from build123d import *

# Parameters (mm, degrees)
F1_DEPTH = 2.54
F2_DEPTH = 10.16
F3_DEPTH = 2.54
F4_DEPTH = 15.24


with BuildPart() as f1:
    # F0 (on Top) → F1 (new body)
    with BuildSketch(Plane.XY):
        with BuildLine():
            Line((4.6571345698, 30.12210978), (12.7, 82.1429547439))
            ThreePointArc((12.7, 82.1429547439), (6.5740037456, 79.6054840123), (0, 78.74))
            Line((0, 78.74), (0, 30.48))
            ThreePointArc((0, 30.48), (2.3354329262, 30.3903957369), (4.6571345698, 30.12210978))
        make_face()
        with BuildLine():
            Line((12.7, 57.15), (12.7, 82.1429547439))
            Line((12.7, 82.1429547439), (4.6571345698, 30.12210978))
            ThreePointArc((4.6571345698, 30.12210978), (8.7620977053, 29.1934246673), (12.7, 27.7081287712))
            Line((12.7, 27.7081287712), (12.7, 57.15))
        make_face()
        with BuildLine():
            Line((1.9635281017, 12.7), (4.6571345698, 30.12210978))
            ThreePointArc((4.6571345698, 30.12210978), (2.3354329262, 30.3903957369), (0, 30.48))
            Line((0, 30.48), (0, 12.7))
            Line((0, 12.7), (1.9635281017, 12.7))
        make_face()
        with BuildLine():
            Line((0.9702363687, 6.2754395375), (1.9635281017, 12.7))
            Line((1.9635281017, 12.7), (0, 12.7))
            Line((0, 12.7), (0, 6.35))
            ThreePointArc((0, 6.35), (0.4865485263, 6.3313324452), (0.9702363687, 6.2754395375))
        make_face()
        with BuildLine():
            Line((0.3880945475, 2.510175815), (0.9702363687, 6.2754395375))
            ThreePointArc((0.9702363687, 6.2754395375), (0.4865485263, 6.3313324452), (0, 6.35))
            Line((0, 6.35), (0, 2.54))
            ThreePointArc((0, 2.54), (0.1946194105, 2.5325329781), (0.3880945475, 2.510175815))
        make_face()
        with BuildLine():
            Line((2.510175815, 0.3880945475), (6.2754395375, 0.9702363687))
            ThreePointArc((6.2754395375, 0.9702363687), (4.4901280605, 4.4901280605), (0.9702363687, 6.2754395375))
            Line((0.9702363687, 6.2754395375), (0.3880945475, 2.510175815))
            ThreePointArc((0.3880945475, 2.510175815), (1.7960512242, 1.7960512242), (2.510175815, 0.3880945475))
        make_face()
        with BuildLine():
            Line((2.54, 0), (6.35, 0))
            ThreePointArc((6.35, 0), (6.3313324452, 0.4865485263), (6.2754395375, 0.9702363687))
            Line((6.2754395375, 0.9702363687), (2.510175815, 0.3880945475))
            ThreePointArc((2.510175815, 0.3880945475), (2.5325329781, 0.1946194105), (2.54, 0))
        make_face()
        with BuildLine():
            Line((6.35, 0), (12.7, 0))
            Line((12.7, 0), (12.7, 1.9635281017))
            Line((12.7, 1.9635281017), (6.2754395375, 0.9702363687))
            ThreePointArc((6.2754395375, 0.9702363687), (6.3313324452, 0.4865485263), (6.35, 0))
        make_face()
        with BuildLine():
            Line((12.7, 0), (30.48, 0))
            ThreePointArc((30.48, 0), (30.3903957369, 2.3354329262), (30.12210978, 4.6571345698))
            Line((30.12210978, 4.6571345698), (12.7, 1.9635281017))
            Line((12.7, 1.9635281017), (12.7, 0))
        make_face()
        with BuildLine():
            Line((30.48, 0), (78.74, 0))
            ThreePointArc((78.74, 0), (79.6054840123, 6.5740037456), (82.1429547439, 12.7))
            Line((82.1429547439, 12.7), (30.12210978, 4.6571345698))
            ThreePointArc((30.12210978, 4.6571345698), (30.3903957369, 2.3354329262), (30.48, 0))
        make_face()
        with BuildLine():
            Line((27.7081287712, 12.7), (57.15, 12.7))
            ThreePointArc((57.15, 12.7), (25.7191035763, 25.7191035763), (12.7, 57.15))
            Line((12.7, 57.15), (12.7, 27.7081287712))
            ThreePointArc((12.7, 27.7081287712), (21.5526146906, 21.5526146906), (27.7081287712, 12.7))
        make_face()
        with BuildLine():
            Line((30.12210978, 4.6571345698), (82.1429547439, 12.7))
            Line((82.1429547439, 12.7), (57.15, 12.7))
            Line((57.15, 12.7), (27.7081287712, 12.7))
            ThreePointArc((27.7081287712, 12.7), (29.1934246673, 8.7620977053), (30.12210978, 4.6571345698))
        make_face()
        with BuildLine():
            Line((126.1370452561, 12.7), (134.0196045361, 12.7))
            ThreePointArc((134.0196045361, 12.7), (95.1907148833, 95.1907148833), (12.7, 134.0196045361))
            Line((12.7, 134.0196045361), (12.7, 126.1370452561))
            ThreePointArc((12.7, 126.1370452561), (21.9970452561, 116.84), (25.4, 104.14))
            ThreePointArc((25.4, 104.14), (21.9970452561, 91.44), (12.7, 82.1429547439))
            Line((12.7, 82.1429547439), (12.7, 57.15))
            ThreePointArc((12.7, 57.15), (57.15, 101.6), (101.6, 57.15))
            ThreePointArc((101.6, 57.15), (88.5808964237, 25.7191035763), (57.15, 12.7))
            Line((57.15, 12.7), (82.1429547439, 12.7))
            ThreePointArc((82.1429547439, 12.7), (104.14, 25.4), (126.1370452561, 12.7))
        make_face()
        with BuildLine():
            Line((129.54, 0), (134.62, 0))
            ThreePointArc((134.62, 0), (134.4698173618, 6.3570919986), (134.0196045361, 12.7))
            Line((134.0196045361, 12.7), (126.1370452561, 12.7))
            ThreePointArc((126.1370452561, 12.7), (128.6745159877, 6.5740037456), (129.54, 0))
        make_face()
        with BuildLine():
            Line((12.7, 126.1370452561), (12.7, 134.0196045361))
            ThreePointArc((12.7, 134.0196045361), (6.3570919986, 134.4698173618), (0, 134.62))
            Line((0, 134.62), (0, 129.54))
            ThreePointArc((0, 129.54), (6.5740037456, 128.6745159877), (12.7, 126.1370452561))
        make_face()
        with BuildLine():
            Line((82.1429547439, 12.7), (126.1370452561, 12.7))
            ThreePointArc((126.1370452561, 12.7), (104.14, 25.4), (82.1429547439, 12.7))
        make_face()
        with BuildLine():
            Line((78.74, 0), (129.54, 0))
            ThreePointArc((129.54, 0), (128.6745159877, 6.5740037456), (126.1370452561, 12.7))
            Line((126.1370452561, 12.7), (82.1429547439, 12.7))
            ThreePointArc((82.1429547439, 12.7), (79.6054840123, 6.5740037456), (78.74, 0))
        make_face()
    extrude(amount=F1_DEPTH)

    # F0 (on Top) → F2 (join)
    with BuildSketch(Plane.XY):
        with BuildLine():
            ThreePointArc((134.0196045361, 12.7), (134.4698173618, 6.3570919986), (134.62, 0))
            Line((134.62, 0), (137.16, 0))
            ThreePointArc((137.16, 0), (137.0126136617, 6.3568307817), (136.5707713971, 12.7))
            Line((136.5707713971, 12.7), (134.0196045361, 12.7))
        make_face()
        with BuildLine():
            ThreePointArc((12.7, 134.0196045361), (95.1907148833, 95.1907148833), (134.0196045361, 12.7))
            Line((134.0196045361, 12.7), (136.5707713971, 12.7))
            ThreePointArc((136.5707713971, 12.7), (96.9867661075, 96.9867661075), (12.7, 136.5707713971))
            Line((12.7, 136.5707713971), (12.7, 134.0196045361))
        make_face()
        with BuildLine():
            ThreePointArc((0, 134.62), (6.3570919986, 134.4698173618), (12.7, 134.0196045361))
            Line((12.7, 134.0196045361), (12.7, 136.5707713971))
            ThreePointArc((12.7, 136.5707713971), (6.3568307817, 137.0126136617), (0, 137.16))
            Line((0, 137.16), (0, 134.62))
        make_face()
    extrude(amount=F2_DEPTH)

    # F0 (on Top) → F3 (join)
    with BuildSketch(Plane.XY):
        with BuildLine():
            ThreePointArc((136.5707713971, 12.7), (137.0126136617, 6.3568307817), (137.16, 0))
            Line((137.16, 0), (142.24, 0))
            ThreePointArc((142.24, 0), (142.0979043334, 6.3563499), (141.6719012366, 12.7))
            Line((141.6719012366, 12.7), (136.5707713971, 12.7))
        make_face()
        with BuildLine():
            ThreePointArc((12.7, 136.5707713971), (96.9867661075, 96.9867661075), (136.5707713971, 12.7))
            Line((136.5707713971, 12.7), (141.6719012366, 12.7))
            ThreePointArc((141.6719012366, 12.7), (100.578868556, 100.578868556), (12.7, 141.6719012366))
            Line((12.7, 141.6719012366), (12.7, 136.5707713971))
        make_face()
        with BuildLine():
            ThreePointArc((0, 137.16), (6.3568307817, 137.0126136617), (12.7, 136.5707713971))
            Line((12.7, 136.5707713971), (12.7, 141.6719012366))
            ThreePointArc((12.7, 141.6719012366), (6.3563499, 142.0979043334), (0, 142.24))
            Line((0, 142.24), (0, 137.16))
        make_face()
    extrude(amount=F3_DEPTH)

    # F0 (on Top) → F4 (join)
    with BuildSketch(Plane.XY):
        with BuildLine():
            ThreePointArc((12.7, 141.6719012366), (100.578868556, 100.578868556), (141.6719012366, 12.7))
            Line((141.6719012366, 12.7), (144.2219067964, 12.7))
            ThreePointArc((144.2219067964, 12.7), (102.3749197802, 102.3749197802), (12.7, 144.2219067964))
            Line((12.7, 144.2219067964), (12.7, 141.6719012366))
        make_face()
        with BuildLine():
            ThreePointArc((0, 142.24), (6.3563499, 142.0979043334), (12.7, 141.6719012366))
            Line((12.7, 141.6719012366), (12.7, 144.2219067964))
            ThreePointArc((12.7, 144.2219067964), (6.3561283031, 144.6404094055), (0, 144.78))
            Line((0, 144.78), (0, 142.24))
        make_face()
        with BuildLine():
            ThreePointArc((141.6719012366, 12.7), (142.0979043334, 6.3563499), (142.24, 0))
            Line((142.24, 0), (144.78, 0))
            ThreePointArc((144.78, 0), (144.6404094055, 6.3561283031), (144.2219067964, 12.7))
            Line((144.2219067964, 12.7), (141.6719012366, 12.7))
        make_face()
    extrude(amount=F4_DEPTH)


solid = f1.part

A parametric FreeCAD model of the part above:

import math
import FreeCAD as App
import Part
import Sketcher

V = App.Vector
Q = App.Units.Quantity

doc = App.newDocument("Part")
params = doc.addObject("Spreadsheet::Sheet", "Params")
for row, (alias, value) in enumerate([
    ("sketch1_radius", "1 in"),
    ("sketch1_radius2", "0.1 in"),
    ("sketch1_radius3", "5.3 in"),
    ("sketch1_radius4", "1.2 in"),
    ("sketch1_height", "3 in"),
    ("pad1_length", "0.1 in"),
    ("sketch2_radius", "5.3 in"),
    ("sketch2_radius2", "5.4 in"),
    ("pad2_length", "0.4 in"),
    ("sketch3_radius", "5.4 in"),
    ("sketch3_radius2", "5.6 in"),
    ("pad3_length", "0.1 in"),
    ("sketch4_radius", "5.6 in"),
    ("sketch4_radius2", "5.7 in"),
    ("pad4_length", "0.6 in"),
], start=1):
    params.set(f"A{row}", alias)
    params.set(f"B{row}", "=" + value)
    params.setAlias(f"B{row}", alias)

body = doc.addObject("PartDesign::Body", "Body")

sketch1 = body.newObject("Sketcher::SketchObject", "Sketch")
sketch1.AttachmentSupport = (doc.getObject("XY_Plane"), [""])
sketch1.MapMode = "FlatFace"
sketch1.addGeometry([
    Part.ArcOfCircle(Part.Circle(V(0, 104.14, 0), V(0, 0, 1), 25.4), math.radians(-90), math.radians(-60)),
    Part.LineSegment(V(0, 78.74, 0), V(0, 2.54, 0)),
    Part.ArcOfCircle(Part.Circle(V(0, 0, 0), V(0, 0, 1), 2.54), math.radians(81.21), math.radians(90)),
    Part.ArcOfCircle(Part.Circle(V(0, 0, 0), V(0, 0, 1), 2.54), math.radians(9), math.radians(81)),
    Part.ArcOfCircle(Part.Circle(V(0, 0, 0), V(0, 0, 1), 2.54), math.radians(0), math.radians(8.79)),
    Part.LineSegment(V(2.54, 0, 0), V(134.62, 0, 0)),
    Part.ArcOfCircle(Part.Circle(V(0, 0, 0), V(0, 0, 1), 134.62), math.radians(0), math.radians(5.41)),
    Part.ArcOfCircle(Part.Circle(V(0, 0, 0), V(0, 0, 1), 134.62), math.radians(5), math.radians(85)),
    Part.ArcOfCircle(Part.Circle(V(0, 0, 0), V(0, 0, 1), 134.62), math.radians(84.59), math.radians(90)),
    Part.LineSegment(V(0, 134.62, 0), V(0, 129.54, 0)),
    Part.ArcOfCircle(Part.Circle(V(0, 104.14, 0), V(0, 0, 1), 25.4), math.radians(60), math.radians(90)),
    Part.ArcOfCircle(Part.Circle(V(0, 104.14, 0), V(0, 0, 1), 25.4), math.radians(0), math.radians(60)),
    Part.ArcOfCircle(Part.Circle(V(0, 104.14, 0), V(0, 0, 1), 25.4), math.radians(-60), math.radians(0)),
    Part.ArcOfCircle(Part.Circle(V(57.15, 57.15, 0), V(0, 0, 1), 44.45), math.radians(180), math.radians(270)),
    Part.ArcOfCircle(Part.Circle(V(57.15, 57.15, 0), V(0, 0, 1), 44.45), math.radians(0), math.radians(180)),
    Part.ArcOfCircle(Part.Circle(V(57.15, 57.15, 0), V(0, 0, 1), 44.45), math.radians(-90), math.radians(0)),
    Part.LineSegment(V(30.12, 4.66, 0), V(12.7, 1.96, 0)),
    Part.LineSegment(V(12.7, 1.96, 0), V(6.28, 0.97, 0)),
    Part.ArcOfCircle(Part.Circle(V(0, 0, 0), V(0, 0, 1), 6.35), math.radians(9), math.radians(81)),
    Part.LineSegment(V(0.97, 6.28, 0), V(1.96, 12.7, 0)),
    Part.LineSegment(V(1.96, 12.7, 0), V(4.66, 30.12, 0)),
    Part.ArcOfCircle(Part.Circle(V(0, 0, 0), V(0, 0, 1), 30.48), math.radians(65.38), math.radians(81.21)),
    Part.ArcOfCircle(Part.Circle(V(0, 0, 0), V(0, 0, 1), 30.48), math.radians(25), math.radians(65)),
    Part.ArcOfCircle(Part.Circle(V(0, 0, 0), V(0, 0, 1), 30.48), math.radians(8.79), math.radians(24.62)),
], False)
sketch1.addConstraint([
    Sketcher.Constraint("Coincident", 0, 1, 1, 1),
    Sketcher.Constraint("Coincident", 1, 2, 2, 2),
    Sketcher.Constraint("Tangent", 2, 1, 3, 2),
    Sketcher.Constraint("Tangent", 3, 1, 4, 2),
    Sketcher.Constraint("Coincident", 4, 1, 5, 1),
    Sketcher.Constraint("Coincident", 5, 2, 6, 1),
    Sketcher.Constraint("Tangent", 6, 2, 7, 1),
    Sketcher.Constraint("Tangent", 7, 2, 8, 1),
    Sketcher.Constraint("Coincident", 8, 2, 9, 1),
    Sketcher.Constraint("Coincident", 9, 2, 10, 2),
    Sketcher.Constraint("Tangent", 10, 1, 11, 2),
    Sketcher.Constraint("Tangent", 11, 1, 12, 2),
    Sketcher.Constraint("Tangent", 12, 1, 0, 2),
    Sketcher.Constraint("Tangent", 13, 1, 14, 2),
    Sketcher.Constraint("Tangent", 14, 1, 15, 2),
    Sketcher.Constraint("Tangent", 15, 1, 13, 2),
    Sketcher.Constraint("Coincident", 16, 2, 17, 1),
    Sketcher.Constraint("Coincident", 17, 2, 18, 1),
    Sketcher.Constraint("Coincident", 18, 2, 19, 1),
    Sketcher.Constraint("Coincident", 19, 2, 20, 1),
    Sketcher.Constraint("Coincident", 20, 2, 21, 2),
    Sketcher.Constraint("Tangent", 21, 1, 22, 2),
    Sketcher.Constraint("Tangent", 22, 1, 23, 2),
    Sketcher.Constraint("Coincident", 23, 1, 16, 1),
    Sketcher.Constraint("Vertical", 1),
    Sketcher.Constraint("Horizontal", 5),
    Sketcher.Constraint("Vertical", 9),
    Sketcher.Constraint("Coincident", 2, 3, -1, 1),
    Sketcher.Constraint("Coincident", 4, 3, -1, 1),
    Sketcher.Constraint("Coincident", 6, 3, -1, 1),
    Sketcher.Constraint("Coincident", 8, 3, -1, 1),
    Sketcher.Constraint("Coincident", 18, 3, -1, 1),
    Sketcher.Constraint("Coincident", 21, 3, -1, 1),
    Sketcher.Constraint("Coincident", 23, 3, -1, 1),
    Sketcher.Constraint("Coincident", 10, 3, 0, 3),
    Sketcher.Constraint("Equal", 0, 10),
    Sketcher.Constraint("PointOnObject", 0, 3, -2),
    Sketcher.Constraint("PointOnObject", 0, 1, -2),
    Sketcher.Constraint("PointOnObject", 4, 1, -1),
    Sketcher.Constraint("PointOnObject", 8, 2, -2),
    Sketcher.Constraint("Parallel", 16, 17),
    Sketcher.Constraint("Parallel", 19, 20),
    Sketcher.Constraint("Horizontal", 12, 3, 11, 1),
    Sketcher.Constraint("Horizontal", 15, 3, 13, 1),
    Sketcher.Constraint("Horizontal", 13, 1, 14, 1),
    Sketcher.Constraint("Horizontal", 6, 2, 15, 1),
    Sketcher.Constraint("Horizontal", 15, 1, 19, 2),
    Sketcher.Constraint("Horizontal", 19, 2, 22, 1),
    Sketcher.Constraint("Vertical", 7, 2, 10, 1),
    Sketcher.Constraint("Vertical", 10, 1, 12, 1),
    Sketcher.Constraint("Vertical", 12, 1, 13, 1),
    Sketcher.Constraint("Vertical", 14, 3, 15, 1),
    Sketcher.Constraint("Vertical", 13, 1, 16, 2),
    Sketcher.Constraint("Vertical", 16, 2, 21, 1),
    Sketcher.Constraint("Equal", 17, 19),
    Sketcher.Constraint("Radius", 0, Q("1 in")),
    Sketcher.Constraint("Radius", 2, Q("0.1 in")),
    Sketcher.Constraint("Radius", 6, Q("5.3 in")),
    Sketcher.Constraint("Radius", 21, Q("1.2 in")),
    Sketcher.Constraint("DistanceY", 1, 2, 1, 1, Q("3 in")),
    Sketcher.Constraint("Radius", 13, Q("1.75 in")),
    Sketcher.Constraint("Radius", 18, Q("0.25 in")),
    Sketcher.Constraint("DistanceX", -1, 1, 14, 1, Q("4 in")),
    Sketcher.Constraint("DistanceY", -1, 1, 15, 1, Q("0.5 in")),
    Sketcher.Constraint("DistanceX", 18, 2, 20, 2, Q("3.686898 mm")),
    Sketcher.Constraint("DistanceY", 16, 2, 21, 1, Q("25.744601 mm")),
    Sketcher.Constraint("DistanceY", 17, 2, 23, 1, Q("3.686898 mm")),
    Sketcher.Constraint("DistanceX", 3, 1, 6, 2, Q("131.509429 mm")),
    Sketcher.Constraint("DistanceY", 17, 2, 2, 1, Q("1.539939 mm")),
])
sketch1.setExpression("Constraints[55]", "Params.sketch1_radius")
sketch1.setExpression("Constraints[56]", "Params.sketch1_radius2")
sketch1.setExpression("Constraints[57]", "Params.sketch1_radius3")
sketch1.setExpression("Constraints[58]", "Params.sketch1_radius4")
sketch1.setExpression("Constraints[59]", "Params.sketch1_height")
pad1 = body.newObject("PartDesign::Pad", "Pad")
pad1.Profile = sketch1
pad1.setExpression("Length", "Params.pad1_length")

sketch2 = body.newObject("Sketcher::SketchObject", "Sketch001")
sketch2.AttachmentSupport = (doc.getObject("XY_Plane"), [""])
sketch2.MapMode = "FlatFace"
sketch2.addGeometry([
    Part.ArcOfCircle(Part.Circle(V(0, 0, 0), V(0, 0, 1), 134.6), math.radians(0), math.radians(5.41)),
    Part.LineSegment(V(134.6, 0, 0), V(137.2, 0, 0)),
    Part.ArcOfCircle(Part.Circle(V(0, 0, 0), V(0, 0, 1), 137.2), math.radians(0), math.radians(5.31)),
    Part.ArcOfCircle(Part.Circle(V(0, 0, 0), V(0, 0, 1), 137.2), math.radians(5), math.radians(85)),
    Part.ArcOfCircle(Part.Circle(V(0, 0, 0), V(0, 0, 1), 137.2), math.radians(84.69), math.radians(90)),
    Part.LineSegment(V(0, 137.2, 0), V(0, 134.6, 0)),
    Part.ArcOfCircle(Part.Circle(V(0, 0, 0), V(0, 0, 1), 134.6), math.radians(84.59), math.radians(90)),
    Part.ArcOfCircle(Part.Circle(V(0, 0, 0), V(0, 0, 1), 134.6), math.radians(5), math.radians(85)),
], False)
sketch2.addConstraint([
    Sketcher.Constraint("Coincident", 0, 1, 1, 1),
    Sketcher.Constraint("Coincident", 1, 2, 2, 1),
    Sketcher.Constraint("Tangent", 2, 2, 3, 1),
    Sketcher.Constraint("Tangent", 3, 2, 4, 1),
    Sketcher.Constraint("Coincident", 4, 2, 5, 1),
    Sketcher.Constraint("Coincident", 5, 2, 6, 2),
    Sketcher.Constraint("Tangent", 6, 1, 7, 2),
    Sketcher.Constraint("Tangent", 7, 1, 0, 2),
    Sketcher.Constraint("Horizontal", 1),
    Sketcher.Constraint("Vertical", 5),
    Sketcher.Constraint("Coincident", 0, 3, -1, 1),
    Sketcher.Constraint("Coincident", 2, 3, -1, 1),
    Sketcher.Constraint("Coincident", 4, 3, -1, 1),
    Sketcher.Constraint("Coincident", 6, 3, -1, 1),
    Sketcher.Constraint("PointOnObject", 0, 1, -1),
    Sketcher.Constraint("PointOnObject", 4, 2, -2),
    Sketcher.Constraint("Horizontal", 2, 2, 7, 1),
    Sketcher.Constraint("Vertical", 3, 2, 6, 1),
    Sketcher.Constraint("Radius", 0, Q("5.3 in")),
    Sketcher.Constraint("Radius", 2, Q("5.4 in")),
    Sketcher.Constraint("DistanceY", -1, 1, 2, 2, Q("0.5 in")),
    Sketcher.Constraint("DistanceX", -1, 1, 3, 2, Q("0.5 in")),
])
sketch2.setExpression("Constraints[18]", "Params.sketch2_radius")
sketch2.setExpression("Constraints[19]", "Params.sketch2_radius2")
pad2 = body.newObject("PartDesign::Pad", "Pad001")
pad2.Profile = sketch2
pad2.setExpression("Length", "Params.pad2_length")

sketch3 = body.newObject("Sketcher::SketchObject", "Sketch002")
sketch3.AttachmentSupport = (doc.getObject("XY_Plane"), [""])
sketch3.MapMode = "FlatFace"
sketch3.addGeometry([
    Part.ArcOfCircle(Part.Circle(V(0, 0, 0), V(0, 0, 1), 137), math.radians(0), math.radians(5.31)),
    Part.LineSegment(V(137, 0, 0), V(142, 0, 0)),
    Part.ArcOfCircle(Part.Circle(V(0, 0, 0), V(0, 0, 1), 142), math.radians(0), math.radians(5.12)),
    Part.ArcOfCircle(Part.Circle(V(0, 0, 0), V(0, 0, 1), 142), math.radians(5), math.radians(85)),
    Part.ArcOfCircle(Part.Circle(V(0, 0, 0), V(0, 0, 1), 142), math.radians(84.88), math.radians(90)),
    Part.LineSegment(V(0, 142, 0), V(0, 137, 0)),
    Part.ArcOfCircle(Part.Circle(V(0, 0, 0), V(0, 0, 1), 137), math.radians(84.69), math.radians(90)),
    Part.ArcOfCircle(Part.Circle(V(0, 0, 0), V(0, 0, 1), 137), math.radians(5), math.radians(85)),
], False)
sketch3.addConstraint([
    Sketcher.Constraint("Coincident", 0, 1, 1, 1),
    Sketcher.Constraint("Coincident", 1, 2, 2, 1),
    Sketcher.Constraint("Tangent", 2, 2, 3, 1),
    Sketcher.Constraint("Tangent", 3, 2, 4, 1),
    Sketcher.Constraint("Coincident", 4, 2, 5, 1),
    Sketcher.Constraint("Coincident", 5, 2, 6, 2),
    Sketcher.Constraint("Tangent", 6, 1, 7, 2),
    Sketcher.Constraint("Tangent", 7, 1, 0, 2),
    Sketcher.Constraint("Horizontal", 1),
    Sketcher.Constraint("Vertical", 5),
    Sketcher.Constraint("Coincident", 0, 3, -1, 1),
    Sketcher.Constraint("Coincident", 2, 3, -1, 1),
    Sketcher.Constraint("Coincident", 4, 3, -1, 1),
    Sketcher.Constraint("Coincident", 6, 3, -1, 1),
    Sketcher.Constraint("PointOnObject", 0, 1, -1),
    Sketcher.Constraint("PointOnObject", 4, 2, -2),
    Sketcher.Constraint("Horizontal", 2, 2, 7, 1),
    Sketcher.Constraint("Vertical", 3, 2, 6, 1),
    Sketcher.Constraint("Radius", 0, Q("5.4 in")),
    Sketcher.Constraint("Radius", 2, Q("5.6 in")),
    Sketcher.Constraint("DistanceY", -1, 1, 2, 2, Q("0.5 in")),
    Sketcher.Constraint("DistanceX", -1, 1, 3, 2, Q("0.5 in")),
])
sketch3.setExpression("Constraints[18]", "Params.sketch3_radius")
sketch3.setExpression("Constraints[19]", "Params.sketch3_radius2")
pad3 = body.newObject("PartDesign::Pad", "Pad002")
pad3.Profile = sketch3
pad3.setExpression("Length", "Params.pad3_length")

sketch4 = body.newObject("Sketcher::SketchObject", "Sketch003")
sketch4.AttachmentSupport = (doc.getObject("XY_Plane"), [""])
sketch4.MapMode = "FlatFace"
sketch4.addGeometry([
    Part.ArcOfCircle(Part.Circle(V(0, 0, 0), V(0, 0, 1), 142.2), math.radians(5), math.radians(85)),
    Part.ArcOfCircle(Part.Circle(V(0, 0, 0), V(0, 0, 1), 142.2), math.radians(0), math.radians(5.12)),
    Part.LineSegment(V(142.2, 0, 0), V(144.8, 0, 0)),
    Part.ArcOfCircle(Part.Circle(V(0, 0, 0), V(0, 0, 1), 144.8), math.radians(0), math.radians(5.03)),
    Part.ArcOfCircle(Part.Circle(V(0, 0, 0), V(0, 0, 1), 144.8), math.radians(5), math.radians(85)),
    Part.ArcOfCircle(Part.Circle(V(0, 0, 0), V(0, 0, 1), 144.8), math.radians(84.97), math.radians(90)),
    Part.LineSegment(V(0, 144.8, 0), V(0, 142.2, 0)),
    Part.ArcOfCircle(Part.Circle(V(0, 0, 0), V(0, 0, 1), 142.2), math.radians(84.88), math.radians(90)),
], False)
sketch4.addConstraint([
    Sketcher.Constraint("Tangent", 0, 1, 1, 2),
    Sketcher.Constraint("Coincident", 1, 1, 2, 1),
    Sketcher.Constraint("Coincident", 2, 2, 3, 1),
    Sketcher.Constraint("Tangent", 3, 2, 4, 1),
    Sketcher.Constraint("Tangent", 4, 2, 5, 1),
    Sketcher.Constraint("Coincident", 5, 2, 6, 1),
    Sketcher.Constraint("Coincident", 6, 2, 7, 2),
    Sketcher.Constraint("Tangent", 7, 1, 0, 2),
    Sketcher.Constraint("Horizontal", 2),
    Sketcher.Constraint("Vertical", 6),
    Sketcher.Constraint("Coincident", 0, 3, -1, 1),
    Sketcher.Constraint("Coincident", 3, 3, -1, 1),
    Sketcher.Constraint("Coincident", 5, 3, -1, 1),
    Sketcher.Constraint("Equal", 0, 1),
    Sketcher.Constraint("Equal", 1, 7),
    Sketcher.Constraint("PointOnObject", 1, 1, -1),
    Sketcher.Constraint("PointOnObject", 5, 2, -2),
    Sketcher.Constraint("Horizontal", 0, 1, 3, 2),
    Sketcher.Constraint("Vertical", 4, 2, 7, 1),
    Sketcher.Constraint("Radius", 0, Q("5.6 in")),
    Sketcher.Constraint("Radius", 3, Q("5.7 in")),
    Sketcher.Constraint("DistanceY", -1, 1, 0, 1, Q("0.5 in")),
    Sketcher.Constraint("DistanceX", -1, 1, 4, 2, Q("0.5 in")),
])
sketch4.setExpression("Constraints[19]", "Params.sketch4_radius")
sketch4.setExpression("Constraints[20]", "Params.sketch4_radius2")
pad4 = body.newObject("PartDesign::Pad", "Pad003")
pad4.Profile = sketch4
pad4.setExpression("Length", "Params.pad4_length")

doc.recompute()
